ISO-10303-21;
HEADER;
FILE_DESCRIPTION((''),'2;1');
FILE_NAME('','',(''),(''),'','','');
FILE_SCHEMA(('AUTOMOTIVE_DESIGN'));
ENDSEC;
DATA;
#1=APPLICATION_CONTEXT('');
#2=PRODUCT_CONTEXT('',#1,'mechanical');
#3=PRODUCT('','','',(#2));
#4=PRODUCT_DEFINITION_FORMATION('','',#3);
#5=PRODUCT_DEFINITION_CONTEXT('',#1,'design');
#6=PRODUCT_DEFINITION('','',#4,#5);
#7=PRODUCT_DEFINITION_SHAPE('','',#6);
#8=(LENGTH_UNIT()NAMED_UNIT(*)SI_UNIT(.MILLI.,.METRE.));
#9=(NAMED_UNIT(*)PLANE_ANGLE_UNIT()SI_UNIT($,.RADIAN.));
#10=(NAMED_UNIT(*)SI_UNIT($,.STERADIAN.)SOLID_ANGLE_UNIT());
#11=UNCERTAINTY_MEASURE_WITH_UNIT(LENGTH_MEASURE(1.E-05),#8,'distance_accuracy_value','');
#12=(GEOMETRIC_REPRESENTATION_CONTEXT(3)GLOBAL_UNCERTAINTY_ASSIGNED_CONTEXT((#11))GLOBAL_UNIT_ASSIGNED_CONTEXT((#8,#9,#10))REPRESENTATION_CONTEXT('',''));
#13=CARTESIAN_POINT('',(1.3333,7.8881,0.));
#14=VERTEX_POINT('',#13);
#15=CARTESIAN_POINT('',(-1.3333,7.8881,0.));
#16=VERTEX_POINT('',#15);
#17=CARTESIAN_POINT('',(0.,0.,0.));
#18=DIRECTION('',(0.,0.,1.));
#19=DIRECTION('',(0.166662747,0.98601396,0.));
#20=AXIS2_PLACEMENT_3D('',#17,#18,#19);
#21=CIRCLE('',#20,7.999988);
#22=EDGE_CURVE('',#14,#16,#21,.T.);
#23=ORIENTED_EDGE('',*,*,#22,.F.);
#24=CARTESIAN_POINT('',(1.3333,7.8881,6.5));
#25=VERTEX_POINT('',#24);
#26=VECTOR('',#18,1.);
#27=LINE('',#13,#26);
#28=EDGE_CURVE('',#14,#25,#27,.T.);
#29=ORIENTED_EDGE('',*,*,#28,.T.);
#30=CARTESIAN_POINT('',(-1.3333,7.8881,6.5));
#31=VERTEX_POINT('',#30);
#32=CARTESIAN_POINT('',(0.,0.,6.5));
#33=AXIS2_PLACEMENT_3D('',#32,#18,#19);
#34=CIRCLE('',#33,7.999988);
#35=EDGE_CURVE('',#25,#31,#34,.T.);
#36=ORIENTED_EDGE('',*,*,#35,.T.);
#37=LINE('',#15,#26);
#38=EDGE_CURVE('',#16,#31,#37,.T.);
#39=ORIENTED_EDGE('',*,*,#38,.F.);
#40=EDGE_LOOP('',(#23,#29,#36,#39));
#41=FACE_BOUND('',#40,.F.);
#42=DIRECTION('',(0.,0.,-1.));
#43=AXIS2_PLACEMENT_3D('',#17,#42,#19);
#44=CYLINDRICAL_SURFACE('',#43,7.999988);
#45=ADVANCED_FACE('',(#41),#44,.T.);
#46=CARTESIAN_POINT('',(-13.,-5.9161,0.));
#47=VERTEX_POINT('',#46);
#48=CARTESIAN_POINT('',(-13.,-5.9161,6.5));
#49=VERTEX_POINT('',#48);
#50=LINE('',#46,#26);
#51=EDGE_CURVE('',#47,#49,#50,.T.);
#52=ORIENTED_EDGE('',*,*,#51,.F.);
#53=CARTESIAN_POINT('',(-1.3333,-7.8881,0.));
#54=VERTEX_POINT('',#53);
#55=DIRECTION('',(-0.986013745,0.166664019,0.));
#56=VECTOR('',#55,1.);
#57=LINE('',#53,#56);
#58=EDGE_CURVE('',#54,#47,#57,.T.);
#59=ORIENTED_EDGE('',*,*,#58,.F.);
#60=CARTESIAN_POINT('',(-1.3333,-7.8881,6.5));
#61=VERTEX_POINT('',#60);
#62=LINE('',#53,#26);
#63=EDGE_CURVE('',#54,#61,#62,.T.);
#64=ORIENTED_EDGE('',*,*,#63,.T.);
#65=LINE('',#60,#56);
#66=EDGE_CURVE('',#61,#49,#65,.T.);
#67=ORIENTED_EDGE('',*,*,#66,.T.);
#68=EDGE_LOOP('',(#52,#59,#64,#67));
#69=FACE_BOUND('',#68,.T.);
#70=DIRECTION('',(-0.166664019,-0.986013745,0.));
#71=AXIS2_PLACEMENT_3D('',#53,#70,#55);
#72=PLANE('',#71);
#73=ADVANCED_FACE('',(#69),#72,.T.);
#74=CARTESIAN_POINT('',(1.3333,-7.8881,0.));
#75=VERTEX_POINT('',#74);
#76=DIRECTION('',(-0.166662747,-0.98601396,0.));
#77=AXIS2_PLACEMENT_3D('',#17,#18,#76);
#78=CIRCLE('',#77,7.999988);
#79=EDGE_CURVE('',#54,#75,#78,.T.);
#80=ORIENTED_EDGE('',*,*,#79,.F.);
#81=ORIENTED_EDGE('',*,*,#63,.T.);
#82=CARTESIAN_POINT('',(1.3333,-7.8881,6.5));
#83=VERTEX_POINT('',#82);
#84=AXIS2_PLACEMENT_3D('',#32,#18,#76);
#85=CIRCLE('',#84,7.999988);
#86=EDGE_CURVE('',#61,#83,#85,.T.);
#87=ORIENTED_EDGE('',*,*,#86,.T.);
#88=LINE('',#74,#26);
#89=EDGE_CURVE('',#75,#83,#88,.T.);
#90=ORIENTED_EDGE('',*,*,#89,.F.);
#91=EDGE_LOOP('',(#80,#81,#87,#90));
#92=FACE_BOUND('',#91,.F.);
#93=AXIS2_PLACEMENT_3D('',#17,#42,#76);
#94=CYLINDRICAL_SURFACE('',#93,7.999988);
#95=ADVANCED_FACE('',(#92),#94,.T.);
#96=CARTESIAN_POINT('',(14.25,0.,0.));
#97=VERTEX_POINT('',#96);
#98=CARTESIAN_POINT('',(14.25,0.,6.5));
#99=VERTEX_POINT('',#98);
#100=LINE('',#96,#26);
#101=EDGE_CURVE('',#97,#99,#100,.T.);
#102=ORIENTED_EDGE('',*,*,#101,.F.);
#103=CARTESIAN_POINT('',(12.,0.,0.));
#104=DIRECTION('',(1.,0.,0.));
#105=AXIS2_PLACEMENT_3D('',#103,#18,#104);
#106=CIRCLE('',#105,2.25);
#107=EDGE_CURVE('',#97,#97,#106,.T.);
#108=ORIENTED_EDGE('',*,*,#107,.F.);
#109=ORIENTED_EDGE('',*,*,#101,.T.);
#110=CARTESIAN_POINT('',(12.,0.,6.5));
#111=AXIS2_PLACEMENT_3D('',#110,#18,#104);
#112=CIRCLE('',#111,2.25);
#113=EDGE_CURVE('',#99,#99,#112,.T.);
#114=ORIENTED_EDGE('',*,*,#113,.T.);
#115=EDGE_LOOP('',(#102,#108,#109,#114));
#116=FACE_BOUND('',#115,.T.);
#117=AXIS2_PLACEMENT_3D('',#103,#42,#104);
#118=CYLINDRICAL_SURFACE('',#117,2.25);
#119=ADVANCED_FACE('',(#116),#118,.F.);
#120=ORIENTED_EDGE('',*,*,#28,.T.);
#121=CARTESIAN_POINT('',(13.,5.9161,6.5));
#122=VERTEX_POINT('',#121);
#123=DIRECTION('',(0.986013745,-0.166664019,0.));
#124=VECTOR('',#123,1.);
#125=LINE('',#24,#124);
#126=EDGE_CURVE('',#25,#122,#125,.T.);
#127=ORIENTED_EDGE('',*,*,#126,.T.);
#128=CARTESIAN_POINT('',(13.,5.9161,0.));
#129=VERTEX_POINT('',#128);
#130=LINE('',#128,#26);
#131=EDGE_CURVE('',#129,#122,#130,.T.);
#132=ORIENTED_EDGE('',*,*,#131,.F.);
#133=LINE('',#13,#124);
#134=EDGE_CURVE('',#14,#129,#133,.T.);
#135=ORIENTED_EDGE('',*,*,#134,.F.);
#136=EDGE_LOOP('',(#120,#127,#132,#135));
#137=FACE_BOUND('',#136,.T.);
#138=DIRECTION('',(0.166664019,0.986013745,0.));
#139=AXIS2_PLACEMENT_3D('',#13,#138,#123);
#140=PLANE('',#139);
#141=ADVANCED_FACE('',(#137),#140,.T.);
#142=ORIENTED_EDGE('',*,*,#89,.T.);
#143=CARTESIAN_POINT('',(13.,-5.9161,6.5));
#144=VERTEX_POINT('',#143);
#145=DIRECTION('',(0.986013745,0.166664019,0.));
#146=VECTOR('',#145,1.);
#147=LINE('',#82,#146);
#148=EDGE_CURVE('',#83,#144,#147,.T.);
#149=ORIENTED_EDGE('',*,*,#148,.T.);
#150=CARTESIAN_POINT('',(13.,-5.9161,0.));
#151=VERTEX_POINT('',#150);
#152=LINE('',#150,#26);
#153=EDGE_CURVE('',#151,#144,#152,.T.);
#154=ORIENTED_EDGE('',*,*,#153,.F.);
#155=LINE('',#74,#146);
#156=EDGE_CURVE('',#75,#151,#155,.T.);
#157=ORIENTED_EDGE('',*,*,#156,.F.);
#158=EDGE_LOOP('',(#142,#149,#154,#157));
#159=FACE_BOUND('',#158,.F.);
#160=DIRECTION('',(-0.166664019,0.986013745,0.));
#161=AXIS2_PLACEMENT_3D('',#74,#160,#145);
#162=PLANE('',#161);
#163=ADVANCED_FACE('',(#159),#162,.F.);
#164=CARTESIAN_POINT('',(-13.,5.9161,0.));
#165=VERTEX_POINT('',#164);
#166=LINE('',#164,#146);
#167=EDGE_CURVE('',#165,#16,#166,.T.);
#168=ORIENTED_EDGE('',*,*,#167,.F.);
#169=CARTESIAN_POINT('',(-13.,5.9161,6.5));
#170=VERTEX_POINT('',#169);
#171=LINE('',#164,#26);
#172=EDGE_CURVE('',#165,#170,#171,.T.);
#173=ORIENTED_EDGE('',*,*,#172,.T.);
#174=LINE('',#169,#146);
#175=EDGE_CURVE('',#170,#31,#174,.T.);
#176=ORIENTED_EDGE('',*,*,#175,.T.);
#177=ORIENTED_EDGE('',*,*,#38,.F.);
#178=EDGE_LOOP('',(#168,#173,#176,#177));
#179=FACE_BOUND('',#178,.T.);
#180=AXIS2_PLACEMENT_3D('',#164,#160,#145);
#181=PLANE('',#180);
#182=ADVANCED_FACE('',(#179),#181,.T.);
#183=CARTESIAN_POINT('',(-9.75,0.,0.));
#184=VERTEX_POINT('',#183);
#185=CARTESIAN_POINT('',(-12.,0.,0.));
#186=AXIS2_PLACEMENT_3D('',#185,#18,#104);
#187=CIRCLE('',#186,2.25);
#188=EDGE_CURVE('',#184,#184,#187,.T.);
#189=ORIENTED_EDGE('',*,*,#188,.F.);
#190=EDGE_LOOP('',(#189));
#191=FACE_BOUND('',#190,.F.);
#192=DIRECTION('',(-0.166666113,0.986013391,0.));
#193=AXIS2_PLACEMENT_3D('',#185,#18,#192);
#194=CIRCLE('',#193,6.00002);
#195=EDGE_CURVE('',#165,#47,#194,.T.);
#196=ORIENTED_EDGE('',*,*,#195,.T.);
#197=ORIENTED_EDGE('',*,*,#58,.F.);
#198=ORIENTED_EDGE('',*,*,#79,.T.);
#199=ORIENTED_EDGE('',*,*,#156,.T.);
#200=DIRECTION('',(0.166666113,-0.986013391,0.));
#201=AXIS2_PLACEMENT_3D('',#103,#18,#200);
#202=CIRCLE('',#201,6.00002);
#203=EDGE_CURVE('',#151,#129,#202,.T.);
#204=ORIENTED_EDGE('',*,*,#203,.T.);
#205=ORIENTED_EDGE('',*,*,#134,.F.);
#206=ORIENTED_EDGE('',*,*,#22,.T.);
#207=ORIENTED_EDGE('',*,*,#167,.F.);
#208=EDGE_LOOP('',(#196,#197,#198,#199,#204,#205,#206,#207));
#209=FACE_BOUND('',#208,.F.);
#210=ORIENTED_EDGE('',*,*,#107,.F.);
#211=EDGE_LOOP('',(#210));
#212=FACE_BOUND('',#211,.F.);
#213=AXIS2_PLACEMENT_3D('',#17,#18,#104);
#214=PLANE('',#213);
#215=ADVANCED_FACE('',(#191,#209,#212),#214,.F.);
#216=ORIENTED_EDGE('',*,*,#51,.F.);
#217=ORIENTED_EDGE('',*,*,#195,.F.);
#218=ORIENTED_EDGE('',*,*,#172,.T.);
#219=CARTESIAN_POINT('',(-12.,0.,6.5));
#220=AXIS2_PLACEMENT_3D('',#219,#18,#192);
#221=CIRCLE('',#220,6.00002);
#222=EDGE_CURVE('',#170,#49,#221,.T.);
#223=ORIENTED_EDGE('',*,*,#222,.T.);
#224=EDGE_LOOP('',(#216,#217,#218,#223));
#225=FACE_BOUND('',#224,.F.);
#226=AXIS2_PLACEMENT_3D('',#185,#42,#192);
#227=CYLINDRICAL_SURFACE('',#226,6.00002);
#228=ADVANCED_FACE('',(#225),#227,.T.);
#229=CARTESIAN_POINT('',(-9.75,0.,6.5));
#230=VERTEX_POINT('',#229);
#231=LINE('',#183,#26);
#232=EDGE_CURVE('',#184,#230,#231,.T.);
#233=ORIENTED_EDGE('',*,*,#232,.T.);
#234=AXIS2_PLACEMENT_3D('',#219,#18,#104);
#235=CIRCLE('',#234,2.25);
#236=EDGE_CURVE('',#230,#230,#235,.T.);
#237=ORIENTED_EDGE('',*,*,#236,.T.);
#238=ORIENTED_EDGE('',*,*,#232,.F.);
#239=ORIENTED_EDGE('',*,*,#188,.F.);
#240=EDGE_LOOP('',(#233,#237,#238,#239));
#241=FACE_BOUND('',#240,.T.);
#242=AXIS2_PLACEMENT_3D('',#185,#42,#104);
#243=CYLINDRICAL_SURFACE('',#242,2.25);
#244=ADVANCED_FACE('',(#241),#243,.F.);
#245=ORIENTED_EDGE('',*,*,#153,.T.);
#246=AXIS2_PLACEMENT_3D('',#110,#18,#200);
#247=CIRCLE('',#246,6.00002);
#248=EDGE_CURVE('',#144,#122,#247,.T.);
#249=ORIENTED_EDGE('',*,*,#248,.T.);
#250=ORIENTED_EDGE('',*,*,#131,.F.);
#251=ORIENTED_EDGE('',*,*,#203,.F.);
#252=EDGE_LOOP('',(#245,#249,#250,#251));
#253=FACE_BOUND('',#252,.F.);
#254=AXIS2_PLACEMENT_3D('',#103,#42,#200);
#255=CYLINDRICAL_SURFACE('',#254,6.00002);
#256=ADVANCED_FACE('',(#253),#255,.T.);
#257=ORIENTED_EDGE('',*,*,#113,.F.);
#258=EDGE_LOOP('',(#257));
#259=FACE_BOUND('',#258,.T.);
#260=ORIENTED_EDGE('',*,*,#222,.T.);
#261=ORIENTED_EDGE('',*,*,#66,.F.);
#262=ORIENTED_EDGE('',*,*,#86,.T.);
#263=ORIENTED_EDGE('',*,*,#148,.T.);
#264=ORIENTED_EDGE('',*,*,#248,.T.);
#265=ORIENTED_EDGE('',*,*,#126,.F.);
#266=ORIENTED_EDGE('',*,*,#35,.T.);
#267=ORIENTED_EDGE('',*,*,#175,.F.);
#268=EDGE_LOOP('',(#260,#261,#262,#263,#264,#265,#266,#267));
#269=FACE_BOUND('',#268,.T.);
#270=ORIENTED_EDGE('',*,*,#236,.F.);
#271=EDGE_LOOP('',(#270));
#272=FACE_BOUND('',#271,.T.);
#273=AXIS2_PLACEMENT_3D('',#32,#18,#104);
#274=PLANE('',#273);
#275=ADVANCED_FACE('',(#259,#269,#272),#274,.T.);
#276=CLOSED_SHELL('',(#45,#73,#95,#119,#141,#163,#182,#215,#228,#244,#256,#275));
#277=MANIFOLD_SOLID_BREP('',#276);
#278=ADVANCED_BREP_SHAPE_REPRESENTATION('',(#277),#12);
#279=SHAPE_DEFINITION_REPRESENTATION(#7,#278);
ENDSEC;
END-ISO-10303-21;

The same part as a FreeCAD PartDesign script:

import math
import FreeCAD as App
import Part
import Sketcher

doc = App.newDocument("Part")
params = doc.addObject("Spreadsheet::Sheet", "Params")
for row, (alias, value) in enumerate([
    ("sketch1_radius", "6 mm"),
    ("sketch1_radius2", "8 mm"),
    ("sketch1_diameter", "4.5 mm"),
    ("pad1_length", "6.5 mm"),
], start=1):
    params.set(f"A{row}", alias)
    params.set(f"B{row}", "=" + value)
    params.setAlias(f"B{row}", alias)

body = doc.addObject("PartDesign::Body", "Body")

# Sketch on XY plane
sketch1 = doc.addObject("Sketcher::SketchObject", "Sketch")
body.addObject(sketch1)
sketch1.AttachmentSupport = (doc.XY_Plane, [""])
sketch1.MapMode = "FlatFace"
sketch1.addGeometry(Part.LineSegment(App.Vector(-1.3, 7.9, 0), App.Vector(-13, 5.9, 0)), False)
sketch1.addGeometry(Part.ArcOfCircle(Part.Circle(App.Vector(-12, 0, 0), App.Vector(0, 0, 1), 6), math.radians(100), math.radians(260)), False)
sketch1.addGeometry(Part.LineSegment(App.Vector(-13, -5.9, 0), App.Vector(-1.3, -7.9, 0)), False)
sketch1.addGeometry(Part.ArcOfCircle(Part.Circle(App.Vector(0, 0, 0), App.Vector(0, 0, 1), 8), math.radians(-99.59), math.radians(-80.41)), False)
sketch1.addGeometry(Part.LineSegment(App.Vector(1.3, -7.9, 0), App.Vector(13, -5.9, 0)), False)
sketch1.addGeometry(Part.ArcOfCircle(Part.Circle(App.Vector(12, 0, 0), App.Vector(0, 0, 1), 6), math.radians(-80), math.radians(80)), False)
sketch1.addGeometry(Part.LineSegment(App.Vector(13, 5.9, 0), App.Vector(1.3, 7.9, 0)), False)
sketch1.addGeometry(Part.ArcOfCircle(Part.Circle(App.Vector(0, 0, 0), App.Vector(0, 0, 1), 8), math.radians(80.41), math.radians(99.59)), False)
sketch1.addGeometry(Part.Circle(App.Vector(-12, 0, 0), App.Vector(0, 0, 1), 2.2), False)
sketch1.addGeometry(Part.Circle(App.Vector(12, 0, 0), App.Vector(0, 0, 1), 2.2), False)
sketch1.addConstraint(Sketcher.Constraint("Tangent", 0, 2, 1, 1))
sketch1.addConstraint(Sketcher.Constraint("Tangent", 1, 2, 2, 1))
sketch1.addConstraint(Sketcher.Constraint("Tangent", 2, 2, 3, 1))
sketch1.addConstraint(Sketcher.Constraint("Tangent", 3, 2, 4, 1))
sketch1.addConstraint(Sketcher.Constraint("Tangent", 4, 2, 5, 1))
sketch1.addConstraint(Sketcher.Constraint("Tangent", 5, 2, 6, 1))
sketch1.addConstraint(Sketcher.Constraint("Tangent", 6, 2, 7, 1))
sketch1.addConstraint(Sketcher.Constraint("Tangent", 7, 2, 0, 1))
sketch1.addConstraint(Sketcher.Constraint("Coincident", 3, 3, -1, 1))
sketch1.addConstraint(Sketcher.Constraint("Coincident", 7, 3, -1, 1))
sketch1.addConstraint(Sketcher.Constraint("Coincident", 8, 3, 1, 3))
sketch1.addConstraint(Sketcher.Constraint("Coincident", 9, 3, 5, 3))
sketch1.addConstraint(Sketcher.Constraint("Equal", 1, 5))
sketch1.addConstraint(Sketcher.Constraint("Equal", 3, 7))
sketch1.addConstraint(Sketcher.Constraint("Equal", 8, 9))
sketch1.addConstraint(Sketcher.Constraint("Symmetric", 1, 3, 5, 3, -1, 1))
sketch1.addConstraint(Sketcher.Constraint("PointOnObject", 1, 3, -1))
sketch1.addConstraint(Sketcher.Constraint("Radius", 1, 6.0))
sketch1.addConstraint(Sketcher.Constraint("Radius", 3, 8.0))
sketch1.addConstraint(Sketcher.Constraint("Diameter", 8, 4.5))
sketch1.addConstraint(Sketcher.Constraint("DistanceX", 1, 3, -1, 1, 12.0))
sketch1.setExpression("Constraints[17]", "Params.sketch1_radius")
sketch1.setExpression("Constraints[18]", "Params.sketch1_radius2")
sketch1.setExpression("Constraints[19]", "Params.sketch1_diameter")
pad1 = doc.addObject("PartDesign::Pad", "Pad")
body.addObject(pad1)
pad1.Profile = sketch1
pad1.setExpression("Length", "Params.pad1_length")

doc.recompute()
